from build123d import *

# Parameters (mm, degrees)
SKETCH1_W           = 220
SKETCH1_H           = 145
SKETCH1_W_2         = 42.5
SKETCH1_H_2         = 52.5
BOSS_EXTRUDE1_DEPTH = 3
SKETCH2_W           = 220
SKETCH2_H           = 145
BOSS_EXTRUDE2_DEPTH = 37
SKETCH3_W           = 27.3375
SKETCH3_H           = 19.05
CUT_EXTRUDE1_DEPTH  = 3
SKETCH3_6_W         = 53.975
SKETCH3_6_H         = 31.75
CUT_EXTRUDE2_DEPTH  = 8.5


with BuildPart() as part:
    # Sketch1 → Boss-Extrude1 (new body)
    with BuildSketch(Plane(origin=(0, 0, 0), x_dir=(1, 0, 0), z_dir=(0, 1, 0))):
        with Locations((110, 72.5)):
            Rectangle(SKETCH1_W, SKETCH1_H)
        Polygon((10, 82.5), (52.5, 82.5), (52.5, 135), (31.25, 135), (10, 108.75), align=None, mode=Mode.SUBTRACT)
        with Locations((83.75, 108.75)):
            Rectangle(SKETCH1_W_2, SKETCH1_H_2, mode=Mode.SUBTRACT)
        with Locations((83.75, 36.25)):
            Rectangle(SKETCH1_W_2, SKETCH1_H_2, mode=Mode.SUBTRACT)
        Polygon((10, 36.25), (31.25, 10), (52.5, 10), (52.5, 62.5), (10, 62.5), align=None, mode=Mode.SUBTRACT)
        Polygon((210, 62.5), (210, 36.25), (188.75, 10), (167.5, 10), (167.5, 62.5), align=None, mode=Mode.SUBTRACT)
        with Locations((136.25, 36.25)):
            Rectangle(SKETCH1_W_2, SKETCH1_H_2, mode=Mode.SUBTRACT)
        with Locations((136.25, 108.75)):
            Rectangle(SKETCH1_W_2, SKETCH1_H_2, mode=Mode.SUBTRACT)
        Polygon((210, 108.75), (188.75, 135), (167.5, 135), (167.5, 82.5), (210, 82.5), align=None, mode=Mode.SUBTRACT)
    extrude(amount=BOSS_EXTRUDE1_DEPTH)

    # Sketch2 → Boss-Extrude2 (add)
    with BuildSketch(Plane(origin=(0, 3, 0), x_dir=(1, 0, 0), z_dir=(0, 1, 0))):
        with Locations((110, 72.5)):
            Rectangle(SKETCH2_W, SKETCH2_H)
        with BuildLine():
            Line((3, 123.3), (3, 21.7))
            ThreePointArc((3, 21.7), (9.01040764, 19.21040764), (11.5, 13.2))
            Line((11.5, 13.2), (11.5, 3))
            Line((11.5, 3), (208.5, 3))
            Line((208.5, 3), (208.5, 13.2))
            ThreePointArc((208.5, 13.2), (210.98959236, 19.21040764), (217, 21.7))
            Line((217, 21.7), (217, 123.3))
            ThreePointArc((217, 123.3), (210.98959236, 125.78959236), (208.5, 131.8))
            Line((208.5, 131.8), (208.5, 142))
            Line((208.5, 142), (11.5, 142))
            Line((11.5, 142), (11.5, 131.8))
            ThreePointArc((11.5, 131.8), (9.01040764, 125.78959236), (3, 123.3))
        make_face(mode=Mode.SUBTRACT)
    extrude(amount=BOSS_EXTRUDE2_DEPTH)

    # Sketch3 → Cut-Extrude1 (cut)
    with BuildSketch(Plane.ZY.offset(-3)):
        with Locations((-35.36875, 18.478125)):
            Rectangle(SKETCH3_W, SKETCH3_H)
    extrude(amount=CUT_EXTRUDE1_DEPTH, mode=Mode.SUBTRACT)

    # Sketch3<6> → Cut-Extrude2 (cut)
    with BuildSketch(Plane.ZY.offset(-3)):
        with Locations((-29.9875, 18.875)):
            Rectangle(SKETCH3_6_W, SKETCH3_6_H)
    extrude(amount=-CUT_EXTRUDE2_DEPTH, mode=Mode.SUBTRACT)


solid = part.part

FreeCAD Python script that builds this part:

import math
import FreeCAD as App
import Part
import Sketcher
Q = App.Units.Quantity

doc = App.newDocument("Part")
params = doc.addObject("Spreadsheet::Sheet", "Params")
for row, (alias, value) in enumerate([
    ("sketch1_width", "220 mm"),
    ("sketch1_height", "145 mm"),
    ("sketch1_width2", "42.5 mm"),
    ("sketch1_height2", "52.5 mm"),
    ("sketch1_width3", "21.25 mm"),
    ("pad1_length", "3 mm"),
    ("sketch2_radius", "8.5 mm"),
    ("sketch2_width", "220 mm"),
    ("sketch2_width2", "197 mm"),
    ("sketch2_height", "145 mm"),
    ("sketch2_height2", "101.6 mm"),
    ("pad2_length", "37 mm"),
    ("sketch3_width", "19.05 mm"),
    ("pocket1_length", "3 mm"),
    ("sketch4_width", "31.75 mm"),
    ("pocket2_length", "8.5 mm"),
], start=1):
    params.set(f"A{row}", alias)
    params.set(f"B{row}", "=" + value)
    params.setAlias(f"B{row}", alias)

body = doc.addObject("PartDesign::Body", "Body")

# Sketch on XZ plane
sketch1 = doc.addObject("Sketcher::SketchObject", "Sketch")
body.addObject(sketch1)
sketch1.AttachmentSupport = (doc.XZ_Plane, [""])
sketch1.MapMode = "FlatFace"
sketch1.addGeometry(Part.LineSegment(App.Vector(0, -145, 0), App.Vector(0, 0, 0)), False)
sketch1.addGeometry(Part.LineSegment(App.Vector(0, 0, 0), App.Vector(220, 0, 0)), False)
sketch1.addGeometry(Part.LineSegment(App.Vector(220, 0, 0), App.Vector(220, -145, 0)), False)
sketch1.addGeometry(Part.LineSegment(App.Vector(220, -145, 0), App.Vector(0, -145, 0)), False)
sketch1.addGeometry(Part.LineSegment(App.Vector(31, -10, 0), App.Vector(10, -36, 0)), False)
sketch1.addGeometry(Part.LineSegment(App.Vector(10, -36, 0), App.Vector(10, -62, 0)), False)
sketch1.addGeometry(Part.LineSegment(App.Vector(10, -62, 0), App.Vector(52, -62, 0)), False)
sketch1.addGeometry(Part.LineSegment(App.Vector(52, -62, 0), App.Vector(52, -10, 0)), False)
sketch1.addGeometry(Part.LineSegment(App.Vector(52, -10, 0), App.Vector(31, -10, 0)), False)
sketch1.addGeometry(Part.LineSegment(App.Vector(105, -10, 0), App.Vector(62, -10, 0)), False)
sketch1.addGeometry(Part.LineSegment(App.Vector(62, -10, 0), App.Vector(62, -62, 0)), False)
sketch1.addGeometry(Part.LineSegment(App.Vector(62, -62, 0), App.Vector(105, -62, 0)), False)
sketch1.addGeometry(Part.LineSegment(App.Vector(105, -62, 0), App.Vector(105, -10, 0)), False)
sketch1.addGeometry(Part.LineSegment(App.Vector(158, -10, 0), App.Vector(115, -10, 0)), False)
sketch1.addGeometry(Part.LineSegment(App.Vector(115, -10, 0), App.Vector(115, -62, 0)), False)
sketch1.addGeometry(Part.LineSegment(App.Vector(115, -62, 0), App.Vector(158, -62, 0)), False)
sketch1.addGeometry(Part.LineSegment(App.Vector(158, -62, 0), App.Vector(158, -10, 0)), False)
sketch1.addGeometry(Part.LineSegment(App.Vector(168, -62, 0), App.Vector(210, -62, 0)), False)
sketch1.addGeometry(Part.LineSegment(App.Vector(210, -62, 0), App.Vector(210, -36, 0)), False)
sketch1.addGeometry(Part.LineSegment(App.Vector(210, -36, 0), App.Vector(189, -10, 0)), False)
sketch1.addGeometry(Part.LineSegment(App.Vector(189, -10, 0), App.Vector(168, -10, 0)), False)
sketch1.addGeometry(Part.LineSegment(App.Vector(168, -10, 0), App.Vector(168, -62, 0)), False)
sketch1.addGeometry(Part.LineSegment(App.Vector(52, -82, 0), App.Vector(10, -82, 0)), False)
sketch1.addGeometry(Part.LineSegment(App.Vector(10, -82, 0), App.Vector(10, -109, 0)), False)
sketch1.addGeometry(Part.LineSegment(App.Vector(10, -109, 0), App.Vector(31, -135, 0)), False)
sketch1.addGeometry(Part.LineSegment(App.Vector(31, -135, 0), App.Vector(52, -135, 0)), False)
sketch1.addGeometry(Part.LineSegment(App.Vector(52, -135, 0), App.Vector(52, -82, 0)), False)
sketch1.addGeometry(Part.LineSegment(App.Vector(105, -82, 0), App.Vector(62, -82, 0)), False)
sketch1.addGeometry(Part.LineSegment(App.Vector(62, -82, 0), App.Vector(62, -135, 0)), False)
sketch1.addGeometry(Part.LineSegment(App.Vector(62, -135, 0), App.Vector(105, -135, 0)), False)
sketch1.addGeometry(Part.LineSegment(App.Vector(105, -135, 0), App.Vector(105, -82, 0)), False)
sketch1.addGeometry(Part.LineSegment(App.Vector(158, -82, 0), App.Vector(115, -82, 0)), False)
sketch1.addGeometry(Part.LineSegment(App.Vector(115, -82, 0), App.Vector(115, -135, 0)), False)
sketch1.addGeometry(Part.LineSegment(App.Vector(115, -135, 0), App.Vector(158, -135, 0)), False)
sketch1.addGeometry(Part.LineSegment(App.Vector(158, -135, 0), App.Vector(158, -82, 0)), False)
sketch1.addGeometry(Part.LineSegment(App.Vector(189, -135, 0), App.Vector(210, -109, 0)), False)
sketch1.addGeometry(Part.LineSegment(App.Vector(210, -109, 0), App.Vector(210, -82, 0)), False)
sketch1.addGeometry(Part.LineSegment(App.Vector(210, -82, 0), App.Vector(168, -82, 0)), False)
sketch1.addGeometry(Part.LineSegment(App.Vector(168, -82, 0), App.Vector(168, -135, 0)), False)
sketch1.addGeometry(Part.LineSegment(App.Vector(168, -135, 0), App.Vector(189, -135, 0)), False)
sketch1.addConstraint(Sketcher.Constraint("Coincident", 0, 2, 1, 1))
sketch1.addConstraint(Sketcher.Constraint("Coincident", 1, 2, 2, 1))
sketch1.addConstraint(Sketcher.Constraint("Coincident", 2, 2, 3, 1))
sketch1.addConstraint(Sketcher.Constraint("Coincident", 3, 2, 0, 1))
sketch1.addConstraint(Sketcher.Constraint("Coincident", 4, 2, 5, 1))
sketch1.addConstraint(Sketcher.Constraint("Coincident", 5, 2, 6, 1))
sketch1.addConstraint(Sketcher.Constraint("Coincident", 6, 2, 7, 1))
sketch1.addConstraint(Sketcher.Constraint("Coincident", 7, 2, 8, 1))
sketch1.addConstraint(Sketcher.Constraint("Coincident", 8, 2, 4, 1))
sketch1.addConstraint(Sketcher.Constraint("Coincident", 9, 2, 10, 1))
sketch1.addConstraint(Sketcher.Constraint("Coincident", 10, 2, 11, 1))
sketch1.addConstraint(Sketcher.Constraint("Coincident", 11, 2, 12, 1))
sketch1.addConstraint(Sketcher.Constraint("Coincident", 12, 2, 9, 1))
sketch1.addConstraint(Sketcher.Constraint("Coincident", 13, 2, 14, 1))
sketch1.addConstraint(Sketcher.Constraint("Coincident", 14, 2, 15, 1))
sketch1.addConstraint(Sketcher.Constraint("Coincident", 15, 2, 16, 1))
sketch1.addConstraint(Sketcher.Constraint("Coincident", 16, 2, 13, 1))
sketch1.addConstraint(Sketcher.Constraint("Coincident", 17, 2, 18, 1))
sketch1.addConstraint(Sketcher.Constraint("Coincident", 18, 2, 19, 1))
sketch1.addConstraint(Sketcher.Constraint("Coincident", 19, 2, 20, 1))
sketch1.addConstraint(Sketcher.Constraint("Coincident", 20, 2, 21, 1))
sketch1.addConstraint(Sketcher.Constraint("Coincident", 21, 2, 17, 1))
sketch1.addConstraint(Sketcher.Constraint("Coincident", 22, 2, 23, 1))
sketch1.addConstraint(Sketcher.Constraint("Coincident", 23, 2, 24, 1))
sketch1.addConstraint(Sketcher.Constraint("Coincident", 24, 2, 25, 1))
sketch1.addConstraint(Sketcher.Constraint("Coincident", 25, 2, 26, 1))
sketch1.addConstraint(Sketcher.Constraint("Coincident", 26, 2, 22, 1))
sketch1.addConstraint(Sketcher.Constraint("Coincident", 27, 2, 28, 1))
sketch1.addConstraint(Sketcher.Constraint("Coincident", 28, 2, 29, 1))
sketch1.addConstraint(Sketcher.Constraint("Coincident", 29, 2, 30, 1))
sketch1.addConstraint(Sketcher.Constraint("Coincident", 30, 2, 27, 1))
sketch1.addConstraint(Sketcher.Constraint("Coincident", 31, 2, 32, 1))
sketch1.addConstraint(Sketcher.Constraint("Coincident", 32, 2, 33, 1))
sketch1.addConstraint(Sketcher.Constraint("Coincident", 33, 2, 34, 1))
sketch1.addConstraint(Sketcher.Constraint("Coincident", 34, 2, 31, 1))
sketch1.addConstraint(Sketcher.Constraint("Coincident", 35, 2, 36, 1))
sketch1.addConstraint(Sketcher.Constraint("Coincident", 36, 2, 37, 1))
sketch1.addConstraint(Sketcher.Constraint("Coincident", 37, 2, 38, 1))
sketch1.addConstraint(Sketcher.Constraint("Coincident", 38, 2, 39, 1))
sketch1.addConstraint(Sketcher.Constraint("Coincident", 39, 2, 35, 1))
sketch1.addConstraint(Sketcher.Constraint("Vertical", 0))
sketch1.addConstraint(Sketcher.Constraint("Horizontal", 1))
sketch1.addConstraint(Sketcher.Constraint("Vertical", 2))
sketch1.addConstraint(Sketcher.Constraint("Horizontal", 3))
sketch1.addConstraint(Sketcher.Constraint("Vertical", 5))
sketch1.addConstraint(Sketcher.Constraint("Horizontal", 6))
sketch1.addConstraint(Sketcher.Constraint("Vertical", 7))
sketch1.addConstraint(Sketcher.Constraint("Horizontal", 8))
sketch1.addConstraint(Sketcher.Constraint("Horizontal", 9))
sketch1.addConstraint(Sketcher.Constraint("Vertical", 10))
sketch1.addConstraint(Sketcher.Constraint("Horizontal", 11))
sketch1.addConstraint(Sketcher.Constraint("Vertical", 12))
sketch1.addConstraint(Sketcher.Constraint("Horizontal", 13))
sketch1.addConstraint(Sketcher.Constraint("Vertical", 14))
sketch1.addConstraint(Sketcher.Constraint("Horizontal", 15))
sketch1.addConstraint(Sketcher.Constraint("Vertical", 16))
sketch1.addConstraint(Sketcher.Constraint("Horizontal", 17))
sketch1.addConstraint(Sketcher.Constraint("Vertical", 18))
sketch1.addConstraint(Sketcher.Constraint("Horizontal", 20))
sketch1.addConstraint(Sketcher.Constraint("Vertical", 21))
sketch1.addConstraint(Sketcher.Constraint("Horizontal", 22))
sketch1.addConstraint(Sketcher.Constraint("Vertical", 23))
sketch1.addConstraint(Sketcher.Constraint("Horizontal", 25))
sketch1.addConstraint(Sketcher.Constraint("Vertical", 26))
sketch1.addConstraint(Sketcher.Constraint("Horizontal", 27))
sketch1.addConstraint(Sketcher.Constraint("Vertical", 28))
sketch1.addConstraint(Sketcher.Constraint("Horizontal", 29))
sketch1.addConstraint(Sketcher.Constraint("Vertical", 30))
sketch1.addConstraint(Sketcher.Constraint("Horizontal", 31))
sketch1.addConstraint(Sketcher.Constraint("Vertical", 32))
sketch1.addConstraint(Sketcher.Constraint("Horizontal", 33))
sketch1.addConstraint(Sketcher.Constraint("Vertical", 34))
sketch1.addConstraint(Sketcher.Constraint("Vertical", 36))
sketch1.addConstraint(Sketcher.Constraint("Horizontal", 37))
sketch1.addConstraint(Sketcher.Constraint("Vertical", 38))
sketch1.addConstraint(Sketcher.Constraint("Horizontal", 39))
sketch1.addConstraint(Sketcher.Constraint("Coincident", 0, 2, -1, 1))
sketch1.addConstraint(Sketcher.Constraint("Parallel", 19, 24))
sketch1.addConstraint(Sketcher.Constraint("Parallel", 4, 35))
sketch1.addConstraint(Sketcher.Constraint("Horizontal", 8, 2, 9, 2))
sketch1.addConstraint(Sketcher.Constraint("Horizontal", 6, 2, 10, 2))
sketch1.addConstraint(Sketcher.Constraint("Horizontal", 12, 2, 13, 2))
sketch1.addConstraint(Sketcher.Constraint("Horizontal", 11, 2, 14, 2))
sketch1.addConstraint(Sketcher.Constraint("Horizontal", 15, 2, 17, 2))
sketch1.addConstraint(Sketcher.Constraint("Horizontal", 4, 2, 18, 2))
sketch1.addConstraint(Sketcher.Constraint("Horizontal", 16, 2, 19, 2))
sketch1.addConstraint(Sketcher.Constraint("Horizontal", 26, 2, 27, 2))
sketch1.addConstraint(Sketcher.Constraint("Horizontal", 25, 2, 28, 2))
sketch1.addConstraint(Sketcher.Constraint("Horizontal", 30, 2, 31, 2))
sketch1.addConstraint(Sketcher.Constraint("Horizontal", 29, 2, 32, 2))
sketch1.addConstraint(Sketcher.Constraint("Horizontal", 23, 2, 35, 2))
sketch1.addConstraint(Sketcher.Constraint("Horizontal", 34, 2, 36, 2))
sketch1.addConstraint(Sketcher.Constraint("Horizontal", 33, 2, 38, 2))
sketch1.addConstraint(Sketcher.Constraint("Vertical", 5, 2, 22, 2))
sketch1.addConstraint(Sketcher.Constraint("Vertical", 8, 2, 24, 2))
sketch1.addConstraint(Sketcher.Constraint("Vertical", 7, 2, 25, 2))
sketch1.addConstraint(Sketcher.Constraint("Vertical", 10, 2, 27, 2))
sketch1.addConstraint(Sketcher.Constraint("Vertical", 12, 2, 29, 2))
sketch1.addConstraint(Sketcher.Constraint("Vertical", 14, 2, 31, 2))
sketch1.addConstraint(Sketcher.Constraint("Vertical", 16, 2, 33, 2))
sketch1.addConstraint(Sketcher.Constraint("Vertical", 18, 2, 35, 2))
sketch1.addConstraint(Sketcher.Constraint("Vertical", 21, 2, 37, 2))
sketch1.addConstraint(Sketcher.Constraint("Vertical", 19, 2, 39, 2))
sketch1.addConstraint(Sketcher.Constraint("Equal", 6, 9))
sketch1.addConstraint(Sketcher.Constraint("Equal", 11, 13))
sketch1.addConstraint(Sketcher.Constraint("Equal", 15, 17))
sketch1.addConstraint(Sketcher.Constraint("Equal", 18, 23))
sketch1.addConstraint(Sketcher.Constraint("DistanceX", 1, 1, 1, 2, Q("220 mm")))
sketch1.addConstraint(Sketcher.Constraint("DistanceY", 0, 1, 0, 2, Q("145 mm")))
sketch1.addConstraint(Sketcher.Constraint("DistanceX", 6, 1, 6, 2, Q("42.5 mm")))
sketch1.addConstraint(Sketcher.Constraint("DistanceY", 7, 1, 7, 2, Q("52.5 mm")))
sketch1.addConstraint(Sketcher.Constraint("DistanceX", -1, 1, 4, 2, Q("10 mm")))
sketch1.addConstraint(Sketcher.Constraint("DistanceY", 7, 2, -1, 1, Q("10 mm")))
sketch1.addConstraint(Sketcher.Constraint("DistanceX", -1, 1, 11, 2, Q("105 mm")))
sketch1.addConstraint(Sketcher.Constraint("DistanceX", -1, 1, 13, 2, Q("115 mm")))
sketch1.addConstraint(Sketcher.Constraint("DistanceX", -1, 1, 17, 2, Q("210 mm")))
sketch1.addConstraint(Sketcher.Constraint("DistanceY", 24, 2, -1, 1, Q("135 mm")))
sketch1.addConstraint(Sketcher.Constraint("DistanceX", 8, 2, 8, 1, Q("21.25 mm")))
sketch1.addConstraint(Sketcher.Constraint("DistanceY", 5, 2, 5, 1, Q("26.25 mm")))
sketch1.setExpression("Constraints[107]", "Params.sketch1_width")
sketch1.setExpression("Constraints[108]", "Params.sketch1_height")
sketch1.setExpression("Constraints[109]", "Params.sketch1_width2")
sketch1.setExpression("Constraints[110]", "Params.sketch1_height2")
sketch1.setExpression("Constraints[117]", "Params.sketch1_width3")
pad1 = doc.addObject("PartDesign::Pad", "Pad")
body.addObject(pad1)
pad1.Profile = sketch1
pad1.setExpression("Length", "Params.pad1_length")
pad1.Reversed = True

# Sketch on XZ plane
sketch2 = doc.addObject("Sketcher::SketchObject", "Sketch001")
body.addObject(sketch2)
sketch2.AttachmentSupport = (doc.XZ_Plane, [""])
sketch2.MapMode = "FlatFace"
sketch2.AttachmentOffset = App.Placement(App.Vector(0, 0, -3), App.Rotation())
sketch2.addGeometry(Part.LineSegment(App.Vector(0, -145, 0), App.Vector(0, 0, 0)), False)
sketch2.addGeometry(Part.LineSegment(App.Vector(0, 0, 0), App.Vector(220, 0, 0)), False)
sketch2.addGeometry(Part.LineSegment(App.Vector(220, 0, 0), App.Vector(220, -145, 0)), False)
sketch2.addGeometry(Part.LineSegment(App.Vector(220, -145, 0), App.Vector(0, -145, 0)), False)
sketch2.addGeometry(Part.LineSegment(App.Vector(3, -22, 0), App.Vector(3, -123, 0)), False)
sketch2.addGeometry(Part.ArcOfCircle(Part.Circle(App.Vector(3, -132, 0), App.Vector(0, 0, 1), 8), math.radians(0), math.radians(90)), False)
sketch2.addGeometry(Part.LineSegment(App.Vector(12, -132, 0), App.Vector(12, -142, 0)), False)
sketch2.addGeometry(Part.LineSegment(App.Vector(12, -142, 0), App.Vector(208, -142, 0)), False)
sketch2.addGeometry(Part.LineSegment(App.Vector(208, -142, 0), App.Vector(208, -132, 0)), False)
sketch2.addGeometry(Part.ArcOfCircle(Part.Circle(App.Vector(217, -132, 0), App.Vector(0, 0, 1), 8), math.radians(90), math.radians(180)), False)
sketch2.addGeometry(Part.LineSegment(App.Vector(217, -123, 0), App.Vector(217, -22, 0)), False)
sketch2.addGeometry(Part.ArcOfCircle(Part.Circle(App.Vector(217, -13, 0), App.Vector(0, 0, 1), 8), math.radians(180), math.radians(270)), False)
sketch2.addGeometry(Part.LineSegment(App.Vector(208, -13, 0), App.Vector(208, -3, 0)), False)
sketch2.addGeometry(Part.LineSegment(App.Vector(208, -3, 0), App.Vector(12, -3, 0)), False)
sketch2.addGeometry(Part.LineSegment(App.Vector(12, -3, 0), App.Vector(12, -13, 0)), False)
sketch2.addGeometry(Part.ArcOfCircle(Part.Circle(App.Vector(3, -13, 0), App.Vector(0, 0, 1), 8), math.radians(-90), math.radians(0)), False)
sketch2.addConstraint(Sketcher.Constraint("Coincident", 0, 2, 1, 1))
sketch2.addConstraint(Sketcher.Constraint("Coincident", 1, 2, 2, 1))
sketch2.addConstraint(Sketcher.Constraint("Coincident", 2, 2, 3, 1))
sketch2.addConstraint(Sketcher.Constraint("Coincident", 3, 2, 0, 1))
sketch2.addConstraint(Sketcher.Constraint("Coincident", 4, 2, 5, 2))
sketch2.addConstraint(Sketcher.Constraint("Tangent", 5, 1, 6, 1))
sketch2.addConstraint(Sketcher.Constraint("Coincident", 6, 2, 7, 1))
sketch2.addConstraint(Sketcher.Constraint("Coincident", 7, 2, 8, 1))
sketch2.addConstraint(Sketcher.Constraint("Tangent", 8, 2, 9, 2))
sketch2.addConstraint(Sketcher.Constraint("Coincident", 9, 1, 10, 1))
sketch2.addConstraint(Sketcher.Constraint("Coincident", 10, 2, 11, 2))
sketch2.addConstraint(Sketcher.Constraint("Tangent", 11, 1, 12, 1))
sketch2.addConstraint(Sketcher.Constraint("Coincident", 12, 2, 13, 1))
sketch2.addConstraint(Sketcher.Constraint("Coincident", 13, 2, 14, 1))
sketch2.addConstraint(Sketcher.Constraint("Tangent", 14, 2, 15, 2))
sketch2.addConstraint(Sketcher.Constraint("Coincident", 15, 1, 4, 1))
sketch2.addConstraint(Sketcher.Constraint("Vertical", 0))
sketch2.addConstraint(Sketcher.Constraint("Horizontal", 1))
sketch2.addConstraint(Sketcher.Constraint("Vertical", 2))
sketch2.addConstraint(Sketcher.Constraint("Horizontal", 3))
sketch2.addConstraint(Sketcher.Constraint("Vertical", 4))
sketch2.addConstraint(Sketcher.Constraint("Vertical", 6))
sketch2.addConstraint(Sketcher.Constraint("Horizontal", 7))
sketch2.addConstraint(Sketcher.Constraint("Vertical", 8))
sketch2.addConstraint(Sketcher.Constraint("Vertical", 10))
sketch2.addConstraint(Sketcher.Constraint("Vertical", 12))
sketch2.addConstraint(Sketcher.Constraint("Horizontal", 13))
sketch2.addConstraint(Sketcher.Constraint("Vertical", 14))
sketch2.addConstraint(Sketcher.Constraint("Coincident", 0, 2, -1, 1))
sketch2.addConstraint(Sketcher.Constraint("Equal", 5, 9))
sketch2.addConstraint(Sketcher.Constraint("Equal", 9, 11))
sketch2.addConstraint(Sketcher.Constraint("Equal", 11, 15))
sketch2.addConstraint(Sketcher.Constraint("Horizontal", 5, 3, 9, 3))
sketch2.addConstraint(Sketcher.Constraint("Horizontal", 11, 3, 15, 3))
sketch2.addConstraint(Sketcher.Constraint("Vertical", 9, 3, 11, 3))
sketch2.addConstraint(Sketcher.Constraint("Vertical", 5, 3, 15, 3))
sketch2.addConstraint(Sketcher.Constraint("Vertical", 15, 3, 4, 2))
sketch2.addConstraint(Sketcher.Constraint("Vertical", 11, 3, 9, 1))
sketch2.addConstraint(Sketcher.Constraint("Equal", 8, 12))
sketch2.addConstraint(Sketcher.Constraint("Radius", 5, Q("8.5 mm")))
sketch2.addConstraint(Sketcher.Constraint("DistanceX", 1, 1, 1, 2, Q("220 mm")))
sketch2.addConstraint(Sketcher.Constraint("DistanceX", 7, 1, 7, 2, Q("197 mm")))
sketch2.addConstraint(Sketcher.Constraint("DistanceY", 0, 1, 0, 2, Q("145 mm")))
sketch2.addConstraint(Sketcher.Constraint("DistanceY", 4, 2, 4, 1, Q("101.6 mm")))
sketch2.addConstraint(Sketcher.Constraint("DistanceY", 6, 2, 6, 1, Q("10.2 mm")))
sketch2.addConstraint(Sketcher.Constraint("DistanceX", -1, 1, 5, 3, Q("3 mm")))
sketch2.addConstraint(Sketcher.Constraint("DistanceY", 6, 2, -1, 1, Q("142 mm")))
sketch2.setExpression("Constraints[39]", "Params.sketch2_radius")
sketch2.setExpression("Constraints[40]", "Params.sketch2_width")
sketch2.setExpression("Constraints[41]", "Params.sketch2_width2")
sketch2.setExpression("Constraints[42]", "Params.sketch2_height")
sketch2.setExpression("Constraints[43]", "Params.sketch2_height2")
pad2 = doc.addObject("PartDesign::Pad", "Pad001")
body.addObject(pad2)
pad2.Profile = sketch2
pad2.setExpression("Length", "Params.pad2_length")
pad2.Reversed = True

# Sketch on YZ plane
sketch3 = doc.addObject("Sketcher::SketchObject", "Sketch002")
body.addObject(sketch3)
sketch3.AttachmentSupport = (doc.YZ_Plane, [""])
sketch3.MapMode = "FlatFace"
sketch3.AttachmentOffset = App.Placement(App.Vector(0, 0, 3), App.Rotation())
sketch3.addGeometry(Part.LineSegment(App.Vector(28, -49, 0), App.Vector(9, -49, 0)), False)
sketch3.addGeometry(Part.LineSegment(App.Vector(9, -49, 0), App.Vector(9, -22, 0)), False)
sketch3.addGeometry(Part.LineSegment(App.Vector(9, -22, 0), App.Vector(28, -22, 0)), False)
sketch3.addGeometry(Part.LineSegment(App.Vector(28, -22, 0), App.Vector(28, -49, 0)), False)
sketch3.addConstraint(Sketcher.Constraint("Coincident", 0, 2, 1, 1))
sketch3.addConstraint(Sketcher.Constraint("Coincident", 1, 2, 2, 1))
sketch3.addConstraint(Sketcher.Constraint("Coincident", 2, 2, 3, 1))
sketch3.addConstraint(Sketcher.Constraint("Coincident", 3, 2, 0, 1))
sketch3.addConstraint(Sketcher.Constraint("Horizontal", 0))
sketch3.addConstraint(Sketcher.Constraint("Vertical", 1))
sketch3.addConstraint(Sketcher.Constraint("Horizontal", 2))
sketch3.addConstraint(Sketcher.Constraint("Vertical", 3))
sketch3.addConstraint(Sketcher.Constraint("DistanceX", 0, 2, 0, 1, Q("19.05 mm")))
sketch3.addConstraint(Sketcher.Constraint("DistanceY", 1, 2, -1, 1, Q("21.7 mm")))
sketch3.addConstraint(Sketcher.Constraint("DistanceY", 1, 1, 1, 2, Q("27.3375 mm")))
sketch3.addConstraint(Sketcher.Constraint("DistanceX", -1, 1, 0, 2, Q("8.953125 mm")))
sketch3.setExpression("Constraints[8]", "Params.sketch3_width")
pocket1 = doc.addObject("PartDesign::Pocket", "Pocket")
body.addObject(pocket1)
pocket1.Profile = sketch3
pocket1.setExpression("Length", "Params.pocket1_length")

# Sketch on YZ plane
sketch4 = doc.addObject("Sketcher::SketchObject", "Sketch003")
body.addObject(sketch4)
sketch4.AttachmentSupport = (doc.YZ_Plane, [""])
sketch4.MapMode = "FlatFace"
sketch4.AttachmentOffset = App.Placement(App.Vector(0, 0, 3), App.Rotation())
sketch4.addGeometry(Part.LineSegment(App.Vector(35, -57, 0), App.Vector(3, -57, 0)), False)
sketch4.addGeometry(Part.LineSegment(App.Vector(3, -57, 0), App.Vector(3, -3, 0)), False)
sketch4.addGeometry(Part.LineSegment(App.Vector(3, -3, 0), App.Vector(35, -3, 0)), False)
sketch4.addGeometry(Part.LineSegment(App.Vector(35, -3, 0), App.Vector(35, -57, 0)), False)
sketch4.addConstraint(Sketcher.Constraint("Coincident", 0, 2, 1, 1))
sketch4.addConstraint(Sketcher.Constraint("Coincident", 1, 2, 2, 1))
sketch4.addConstraint(Sketcher.Constraint("Coincident", 2, 2, 3, 1))
sketch4.addConstraint(Sketcher.Constraint("Coincident", 3, 2, 0, 1))
sketch4.addConstraint(Sketcher.Constraint("Horizontal", 0))
sketch4.addConstraint(Sketcher.Constraint("Vertical", 1))
sketch4.addConstraint(Sketcher.Constraint("Horizontal", 2))
sketch4.addConstraint(Sketcher.Constraint("Vertical", 3))
sketch4.addConstraint(Sketcher.Constraint("DistanceX", -1, 1, 0, 2, Q("3 mm")))
sketch4.addConstraint(Sketcher.Constraint("DistanceY", 1, 2, -1, 1, Q("3 mm")))
sketch4.addConstraint(Sketcher.Constraint("DistanceX", 0, 2, 0, 1, Q("31.75 mm")))
sketch4.addConstraint(Sketcher.Constraint("DistanceY", 1, 1, 1, 2, Q("53.975 mm")))
sketch4.setExpression("Constraints[10]", "Params.sketch4_width")
pocket2 = doc.addObject("PartDesign::Pocket", "Pocket001")
body.addObject(pocket2)
pocket2.Profile = sketch4
pocket2.setExpression("Length", "Params.pocket2_length")
pocket2.Reversed = True

doc.recompute()
